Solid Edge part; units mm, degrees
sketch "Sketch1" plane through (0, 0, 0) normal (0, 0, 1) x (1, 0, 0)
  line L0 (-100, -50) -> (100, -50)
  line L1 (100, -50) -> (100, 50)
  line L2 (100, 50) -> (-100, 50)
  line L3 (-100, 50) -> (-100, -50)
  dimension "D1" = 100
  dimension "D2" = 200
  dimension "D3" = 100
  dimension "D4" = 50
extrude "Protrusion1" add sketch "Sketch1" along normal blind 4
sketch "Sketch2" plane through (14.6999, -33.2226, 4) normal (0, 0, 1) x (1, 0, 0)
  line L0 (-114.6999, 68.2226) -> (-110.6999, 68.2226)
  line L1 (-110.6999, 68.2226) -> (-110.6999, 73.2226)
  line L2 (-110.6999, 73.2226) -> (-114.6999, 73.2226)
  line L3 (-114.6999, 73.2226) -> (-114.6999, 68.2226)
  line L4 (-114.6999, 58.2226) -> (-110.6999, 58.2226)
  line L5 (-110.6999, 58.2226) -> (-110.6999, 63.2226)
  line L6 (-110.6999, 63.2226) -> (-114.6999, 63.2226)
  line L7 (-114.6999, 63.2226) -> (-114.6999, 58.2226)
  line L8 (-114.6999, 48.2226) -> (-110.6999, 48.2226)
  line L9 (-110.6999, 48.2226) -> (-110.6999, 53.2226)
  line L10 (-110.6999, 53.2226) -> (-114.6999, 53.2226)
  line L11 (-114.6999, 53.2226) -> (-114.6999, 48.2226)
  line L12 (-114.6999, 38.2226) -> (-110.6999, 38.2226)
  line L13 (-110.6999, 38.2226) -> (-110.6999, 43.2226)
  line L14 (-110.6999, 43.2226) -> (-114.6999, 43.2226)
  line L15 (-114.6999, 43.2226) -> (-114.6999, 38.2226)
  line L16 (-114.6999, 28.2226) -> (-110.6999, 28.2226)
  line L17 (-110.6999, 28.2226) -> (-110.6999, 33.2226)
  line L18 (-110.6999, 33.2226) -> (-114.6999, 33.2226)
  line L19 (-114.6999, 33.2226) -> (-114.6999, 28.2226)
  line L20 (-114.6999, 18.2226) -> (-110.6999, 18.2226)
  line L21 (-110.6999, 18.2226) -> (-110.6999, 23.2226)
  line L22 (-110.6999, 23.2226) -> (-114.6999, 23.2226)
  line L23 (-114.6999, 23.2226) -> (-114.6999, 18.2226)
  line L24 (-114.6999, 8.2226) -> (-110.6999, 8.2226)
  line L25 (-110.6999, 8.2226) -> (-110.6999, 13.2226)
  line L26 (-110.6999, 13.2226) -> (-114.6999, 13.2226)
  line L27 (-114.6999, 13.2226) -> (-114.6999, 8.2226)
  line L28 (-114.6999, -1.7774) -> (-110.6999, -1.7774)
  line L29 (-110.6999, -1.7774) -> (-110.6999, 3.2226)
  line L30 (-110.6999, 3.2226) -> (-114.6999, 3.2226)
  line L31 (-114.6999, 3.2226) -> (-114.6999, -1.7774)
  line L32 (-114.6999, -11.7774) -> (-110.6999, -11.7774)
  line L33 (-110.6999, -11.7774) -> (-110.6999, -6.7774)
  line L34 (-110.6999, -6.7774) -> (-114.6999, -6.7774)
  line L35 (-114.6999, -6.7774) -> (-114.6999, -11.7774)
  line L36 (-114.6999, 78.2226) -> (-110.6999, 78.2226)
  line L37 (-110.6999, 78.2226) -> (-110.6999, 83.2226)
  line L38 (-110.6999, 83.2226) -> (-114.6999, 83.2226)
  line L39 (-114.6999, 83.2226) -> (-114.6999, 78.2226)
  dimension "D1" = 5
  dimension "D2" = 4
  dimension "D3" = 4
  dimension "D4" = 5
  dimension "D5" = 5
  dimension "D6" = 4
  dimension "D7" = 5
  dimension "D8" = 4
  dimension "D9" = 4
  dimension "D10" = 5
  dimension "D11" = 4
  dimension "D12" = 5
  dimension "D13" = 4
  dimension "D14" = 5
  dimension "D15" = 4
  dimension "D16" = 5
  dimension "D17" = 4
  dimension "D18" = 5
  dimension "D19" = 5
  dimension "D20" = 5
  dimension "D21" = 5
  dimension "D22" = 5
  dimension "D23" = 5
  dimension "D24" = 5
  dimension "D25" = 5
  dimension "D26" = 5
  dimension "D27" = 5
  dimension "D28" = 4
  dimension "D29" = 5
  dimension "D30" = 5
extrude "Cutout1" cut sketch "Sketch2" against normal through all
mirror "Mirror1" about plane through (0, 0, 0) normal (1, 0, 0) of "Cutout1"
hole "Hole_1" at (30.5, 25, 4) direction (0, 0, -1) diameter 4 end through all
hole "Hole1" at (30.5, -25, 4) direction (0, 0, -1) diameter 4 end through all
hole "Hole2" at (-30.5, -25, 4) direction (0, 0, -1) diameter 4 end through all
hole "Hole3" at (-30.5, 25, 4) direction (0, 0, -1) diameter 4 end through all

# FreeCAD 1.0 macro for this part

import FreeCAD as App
import Part
import Sketcher

doc = App.newDocument("Part")
body = doc.addObject("PartDesign::Body", "Body")

# Sketch on XY plane
sketch1 = doc.addObject("Sketcher::SketchObject", "Sketch")
body.addObject(sketch1)
sketch1.AttachmentSupport = (doc.XY_Plane, [""])
sketch1.MapMode = "FlatFace"
sketch1.addGeometry([
    Part.LineSegment(App.Vector(-100, 50, 0), App.Vector(-100, -50, 0)),
    Part.LineSegment(App.Vector(-100, -50, 0), App.Vector(100, -50, 0)),
    Part.LineSegment(App.Vector(100, -50, 0), App.Vector(100, 50, 0)),
    Part.LineSegment(App.Vector(100, 50, 0), App.Vector(-100, 50, 0)),
], False)
sketch1.addConstraint([
    Sketcher.Constraint("Coincident", 0, 2, 1, 1),
    Sketcher.Constraint("Coincident", 1, 2, 2, 1),
    Sketcher.Constraint("Coincident", 2, 2, 3, 1),
    Sketcher.Constraint("Coincident", 3, 2, 0, 1),
    Sketcher.Constraint("Vertical", 0),
    Sketcher.Constraint("Horizontal", 1),
    Sketcher.Constraint("Vertical", 2),
    Sketcher.Constraint("Horizontal", 3),
    Sketcher.Constraint("Symmetric", 0, 2, 2, 2, -1, 1),
    Sketcher.Constraint("DistanceY", 0, 2, 0, 1, 100.0),
    Sketcher.Constraint("DistanceX", 0, 2, -1, 1, 100.0),
])
pad1 = doc.addObject("PartDesign::Pad", "Pad")
body.addObject(pad1)
pad1.Profile = sketch1
pad1.Length = 4

# Sketch on XY plane
sketch2 = doc.addObject("Sketcher::SketchObject", "Sketch001")
body.addObject(sketch2)
sketch2.AttachmentSupport = (doc.XY_Plane, [""])
sketch2.MapMode = "FlatFace"
sketch2.AttachmentOffset = App.Placement(App.Vector(0, 0, 4), App.Rotation())
sketch2.addGeometry([
    Part.LineSegment(App.Vector(-100, 40, 0), App.Vector(-100, 35, 0)),  # 0
    Part.LineSegment(App.Vector(-100, 35, 0), App.Vector(-96, 35, 0)),  # 1
    Part.LineSegment(App.Vector(-96, 35, 0), App.Vector(-96, 40, 0)),  # 2
    Part.LineSegment(App.Vector(-96, 40, 0), App.Vector(-100, 40, 0)),  # 3
    Part.LineSegment(App.Vector(-100, 30, 0), App.Vector(-100, 25, 0)),  # 4
    Part.LineSegment(App.Vector(-100, 25, 0), App.Vector(-96, 25, 0)),  # 5
    Part.LineSegment(App.Vector(-96, 25, 0), App.Vector(-96, 30, 0)),  # 6
    Part.LineSegment(App.Vector(-96, 30, 0), App.Vector(-100, 30, 0)),  # 7
    Part.LineSegment(App.Vector(-100, 20, 0), App.Vector(-100, 15, 0)),  # 8
    Part.LineSegment(App.Vector(-100, 15, 0), App.Vector(-96, 15, 0)),  # 9
    Part.LineSegment(App.Vector(-96, 15, 0), App.Vector(-96, 20, 0)),  # 10
    Part.LineSegment(App.Vector(-96, 20, 0), App.Vector(-100, 20, 0)),  # 11
    Part.LineSegment(App.Vector(-100, 10, 0), App.Vector(-100, 5, 0)),  # 12
    Part.LineSegment(App.Vector(-100, 5, 0), App.Vector(-96, 5, 0)),  # 13
    Part.LineSegment(App.Vector(-96, 5, 0), App.Vector(-96, 10, 0)),  # 14
    Part.LineSegment(App.Vector(-96, 10, 0), App.Vector(-100, 10, 0)),  # 15
    Part.LineSegment(App.Vector(-100, 0, 0), App.Vector(-100, -5, 0)),  # 16
    Part.LineSegment(App.Vector(-100, -5, 0), App.Vector(-96, -5, 0)),  # 17
    Part.LineSegment(App.Vector(-96, -5, 0), App.Vector(-96, 0, 0)),  # 18
    Part.LineSegment(App.Vector(-96, 0, 0), App.Vector(-100, 0, 0)),  # 19
    Part.LineSegment(App.Vector(-100, -10, 0), App.Vector(-100, -15, 0)),  # 20
    Part.LineSegment(App.Vector(-100, -15, 0), App.Vector(-96, -15, 0)),  # 21
    Part.LineSegment(App.Vector(-96, -15, 0), App.Vector(-96, -10, 0)),  # 22
    Part.LineSegment(App.Vector(-96, -10, 0), App.Vector(-100, -10, 0)),  # 23
    Part.LineSegment(App.Vector(-100, -20, 0), App.Vector(-100, -25, 0)),  # 24
    Part.LineSegment(App.Vector(-100, -25, 0), App.Vector(-96, -25, 0)),  # 25
    Part.LineSegment(App.Vector(-96, -25, 0), App.Vector(-96, -20, 0)),  # 26
    Part.LineSegment(App.Vector(-96, -20, 0), App.Vector(-100, -20, 0)),  # 27
    Part.LineSegment(App.Vector(-100, -30, 0), App.Vector(-100, -35, 0)),  # 28
    Part.LineSegment(App.Vector(-100, -35, 0), App.Vector(-96, -35, 0)),  # 29
    Part.LineSegment(App.Vector(-96, -35, 0), App.Vector(-96, -30, 0)),  # 30
    Part.LineSegment(App.Vector(-96, -30, 0), App.Vector(-100, -30, 0)),  # 31
    Part.LineSegment(App.Vector(-100, -40, 0), App.Vector(-100, -45, 0)),  # 32
    Part.LineSegment(App.Vector(-100, -45, 0), App.Vector(-96, -45, 0)),  # 33
    Part.LineSegment(App.Vector(-96, -45, 0), App.Vector(-96, -40, 0)),  # 34
    Part.LineSegment(App.Vector(-96, -40, 0), App.Vector(-100, -40, 0)),  # 35
    Part.LineSegment(App.Vector(-100, 50, 0), App.Vector(-100, 45, 0)),  # 36
    Part.LineSegment(App.Vector(-100, 45, 0), App.Vector(-96, 45, 0)),  # 37
    Part.LineSegment(App.Vector(-96, 45, 0), App.Vector(-96, 50, 0)),  # 38
    Part.LineSegment(App.Vector(-96, 50, 0), App.Vector(-100, 50, 0)),  # 39
], False)
sketch2.addConstraint([
    Sketcher.Constraint("Coincident", 0, 2, 1, 1),
    Sketcher.Constraint("Coincident", 1, 2, 2, 1),
    Sketcher.Constraint("Coincident", 2, 2, 3, 1),
    Sketcher.Constraint("Coincident", 3, 2, 0, 1),
    Sketcher.Constraint("Coincident", 4, 2, 5, 1),
    Sketcher.Constraint("Coincident", 5, 2, 6, 1),
    Sketcher.Constraint("Coincident", 6, 2, 7, 1),
    Sketcher.Constraint("Coincident", 7, 2, 4, 1),
    Sketcher.Constraint("Coincident", 8, 2, 9, 1),
    Sketcher.Constraint("Coincident", 9, 2, 10, 1),
    Sketcher.Constraint("Coincident", 10, 2, 11, 1),
    Sketcher.Constraint("Coincident", 11, 2, 8, 1),
    Sketcher.Constraint("Coincident", 12, 2, 13, 1),
    Sketcher.Constraint("Coincident", 13, 2, 14, 1),
    Sketcher.Constraint("Coincident", 14, 2, 15, 1),
    Sketcher.Constraint("Coincident", 15, 2, 12, 1),
    Sketcher.Constraint("Coincident", 16, 2, 17, 1),
    Sketcher.Constraint("Coincident", 17, 2, 18, 1),
    Sketcher.Constraint("Coincident", 18, 2, 19, 1),
    Sketcher.Constraint("Coincident", 19, 2, 16, 1),
    Sketcher.Constraint("Coincident", 20, 2, 21, 1),
    Sketcher.Constraint("Coincident", 21, 2, 22, 1),
    Sketcher.Constraint("Coincident", 22, 2, 23, 1),
    Sketcher.Constraint("Coincident", 23, 2, 20, 1),
    Sketcher.Constraint("Coincident", 24, 2, 25, 1),
    Sketcher.Constraint("Coincident", 25, 2, 26, 1),
    Sketcher.Constraint("Coincident", 26, 2, 27, 1),
    Sketcher.Constraint("Coincident", 27, 2, 24, 1),
    Sketcher.Constraint("Coincident", 28, 2, 29, 1),
    Sketcher.Constraint("Coincident", 29, 2, 30, 1),
    Sketcher.Constraint("Coincident", 30, 2, 31, 1),
    Sketcher.Constraint("Coincident", 31, 2, 28, 1),
    Sketcher.Constraint("Coincident", 32, 2, 33, 1),
    Sketcher.Constraint("Coincident", 33, 2, 34, 1),
    Sketcher.Constraint("Coincident", 34, 2, 35, 1),
    Sketcher.Constraint("Coincident", 35, 2, 32, 1),
    Sketcher.Constraint("Coincident", 36, 2, 37, 1),
    Sketcher.Constraint("Coincident", 37, 2, 38, 1),
    Sketcher.Constraint("Coincident", 38, 2, 39, 1),
    Sketcher.Constraint("Coincident", 39, 2, 36, 1),
    Sketcher.Constraint("Vertical", 0),
    Sketcher.Constraint("Horizontal", 1),
    Sketcher.Constraint("Vertical", 2),
    Sketcher.Constraint("Horizontal", 3),
    Sketcher.Constraint("Vertical", 4),
    Sketcher.Constraint("Horizontal", 5),
    Sketcher.Constraint("Vertical", 6),
    Sketcher.Constraint("Horizontal", 7),
    Sketcher.Constraint("Vertical", 8),
    Sketcher.Constraint("Horizontal", 9),
    Sketcher.Constraint("Vertical", 10),
    Sketcher.Constraint("Horizontal", 11),
    Sketcher.Constraint("Vertical", 12),
    Sketcher.Constraint("Horizontal", 13),
    Sketcher.Constraint("Vertical", 14),
    Sketcher.Constraint("Horizontal", 15),
    Sketcher.Constraint("Vertical", 16),
    Sketcher.Constraint("Horizontal", 17),
    Sketcher.Constraint("Vertical", 18),
    Sketcher.Constraint("Horizontal", 19),
    Sketcher.Constraint("Vertical", 20),
    Sketcher.Constraint("Horizontal", 21),
    Sketcher.Constraint("Vertical", 22),
    Sketcher.Constraint("Horizontal", 23),
    Sketcher.Constraint("Vertical", 24),
    Sketcher.Constraint("Horizontal", 25),
    Sketcher.Constraint("Vertical", 26),
    Sketcher.Constraint("Horizontal", 27),
    Sketcher.Constraint("Vertical", 28),
    Sketcher.Constraint("Horizontal", 29),
    Sketcher.Constraint("Vertical", 30),
    Sketcher.Constraint("Horizontal", 31),
    Sketcher.Constraint("Vertical", 32),
    Sketcher.Constraint("Horizontal", 33),
    Sketcher.Constraint("Vertical", 34),
    Sketcher.Constraint("Horizontal", 35),
    Sketcher.Constraint("Vertical", 36),
    Sketcher.Constraint("Horizontal", 37),
    Sketcher.Constraint("Vertical", 38),
    Sketcher.Constraint("Horizontal", 39),
    Sketcher.Constraint("Symmetric", 12, 2, 16, 2, -1),
    Sketcher.Constraint("Symmetric", 8, 2, 20, 2, -1),
    Sketcher.Constraint("Symmetric", 14, 2, 22, 2, -1),
    Sketcher.Constraint("Symmetric", 4, 2, 24, 2, -1),
    Sketcher.Constraint("Symmetric", 10, 2, 26, 2, -1),
    Sketcher.Constraint("Symmetric", 0, 2, 28, 2, -1),
    Sketcher.Constraint("Symmetric", 6, 2, 30, 2, -1),
    Sketcher.Constraint("Symmetric", 2, 2, 34, 2, -1),
    Sketcher.Constraint("Symmetric", 32, 2, 36, 2, -1),
    Sketcher.Constraint("PointOnObject", 18, 2, -1),
    Sketcher.Constraint("Vertical", 3, 2, 4, 2),
    Sketcher.Constraint("Vertical", 2, 2, 5, 2),
    Sketcher.Constraint("Vertical", 7, 2, 8, 2),
    Sketcher.Constraint("Vertical", 6, 2, 9, 2),
    Sketcher.Constraint("Vertical", 11, 2, 12, 2),
    Sketcher.Constraint("Vertical", 10, 2, 13, 2),
    Sketcher.Constraint("Vertical", 14, 2, 17, 2),
    Sketcher.Constraint("Vertical", 31, 2, 32, 2),
    Sketcher.Constraint("Vertical", 34, 2, 37, 2),
    Sketcher.Constraint("Equal", 2, 4),
    Sketcher.Constraint("Equal", 6, 8),
    Sketcher.Constraint("Equal", 10, 12),
    Sketcher.Constraint("Equal", 14, 16),
    Sketcher.Constraint("Equal", 18, 20),
    Sketcher.Constraint("Equal", 22, 24),
    Sketcher.Constraint("Equal", 26, 28),
    Sketcher.Constraint("Equal", 30, 32),
    Sketcher.Constraint("Equal", 34, 36),
    Sketcher.Constraint("DistanceX", 1, 1, 1, 2, 4.0),
    Sketcher.Constraint("DistanceY", 0, 2, 0, 1, 5.0),
    Sketcher.Constraint("DistanceX", 0, 2, -1, 1, 100.0),
])
pocket1 = doc.addObject("PartDesign::Pocket", "Pocket")
body.addObject(pocket1)
pocket1.Profile = sketch2
pocket1.Type = "ThroughAll"
doc.recompute()

mirrored = doc.addObject("PartDesign::Mirrored", "Mirrored")
body.addObject(mirrored)
mirrored.Originals = [pocket1]
mirrored.MirrorPlane = (doc.YZ_Plane, [""])
body.Tip = mirrored

# Sketch on XY plane
sketch3 = doc.addObject("Sketcher::SketchObject", "Sketch002")
body.addObject(sketch3)
sketch3.AttachmentSupport = (doc.XY_Plane, [""])
sketch3.MapMode = "FlatFace"
sketch3.AttachmentOffset = App.Placement(App.Vector(0, 0, 4), App.Rotation())
sketch3.addGeometry(Part.Circle(App.Vector(30.5, 25, 0), App.Vector(0, 0, 1), 2), False)
sketch3.addConstraint([
    Sketcher.Constraint("Diameter", 0, 4.0),
    Sketcher.Constraint("DistanceY", -1, 1, 0, 3, 25.0),
    Sketcher.Constraint("DistanceX", -1, 1, 0, 3, 30.5),
])
doc.recompute()
hole = doc.addObject("PartDesign::Hole", "Hole")
body.addObject(hole)
hole.Profile = sketch3
hole.ThreadType = "None"
hole.Diameter = 4
hole.DepthType = "ThroughAll"

# Sketch on XY plane
sketch4 = doc.addObject("Sketcher::SketchObject", "Sketch003")
body.addObject(sketch4)
sketch4.AttachmentSupport = (doc.XY_Plane, [""])
sketch4.MapMode = "FlatFace"
sketch4.AttachmentOffset = App.Placement(App.Vector(0, 0, 4), App.Rotation())
sketch4.addGeometry(Part.Circle(App.Vector(30.5, -25, 0), App.Vector(0, 0, 1), 2), False)
sketch4.addConstraint([
    Sketcher.Constraint("Diameter", 0, 4.0),
    Sketcher.Constraint("DistanceY", 0, 3, -1, 1, 25.0),
    Sketcher.Constraint("DistanceX", -1, 1, 0, 3, 30.5),
])
doc.recompute()
hole2 = doc.addObject("PartDesign::Hole", "Hole001")
body.addObject(hole2)
hole2.Profile = sketch4
hole2.ThreadType = "None"
hole2.Diameter = 4
hole2.DepthType = "ThroughAll"

# Sketch on XY plane
sketch5 = doc.addObject("Sketcher::SketchObject", "Sketch004")
body.addObject(sketch5)
sketch5.AttachmentSupport = (doc.XY_Plane, [""])
sketch5.MapMode = "FlatFace"
sketch5.AttachmentOffset = App.Placement(App.Vector(0, 0, 4), App.Rotation())
sketch5.addGeometry(Part.Circle(App.Vector(-30.5, -25, 0), App.Vector(0, 0, 1), 2), False)
sketch5.addConstraint([
    Sketcher.Constraint("Diameter", 0, 4.0),
    Sketcher.Constraint("DistanceY", 0, 3, -1, 1, 25.0),
    Sketcher.Constraint("DistanceX", 0, 3, -1, 1, 30.5),
])
doc.recompute()
hole3 = doc.addObject("PartDesign::Hole", "Hole002")
body.addObject(hole3)
hole3.Profile = sketch5
hole3.ThreadType = "None"
hole3.Diameter = 4
hole3.DepthType = "ThroughAll"

# Sketch on XY plane
sketch6 = doc.addObject("Sketcher::SketchObject", "Sketch005")
body.addObject(sketch6)
sketch6.AttachmentSupport = (doc.XY_Plane, [""])
sketch6.MapMode = "FlatFace"
sketch6.AttachmentOffset = App.Placement(App.Vector(0, 0, 4), App.Rotation())
sketch6.addGeometry(Part.Circle(App.Vector(-30.5, 25, 0), App.Vector(0, 0, 1), 2), False)
sketch6.addConstraint([
    Sketcher.Constraint("Diameter", 0, 4.0),
    Sketcher.Constraint("DistanceY", -1, 1, 0, 3, 25.0),
    Sketcher.Constraint("DistanceX", 0, 3, -1, 1, 30.5),
])
doc.recompute()
hole4 = doc.addObject("PartDesign::Hole", "Hole003")
body.addObject(hole4)
hole4.Profile = sketch6
hole4.ThreadType = "None"
hole4.Diameter = 4
hole4.DepthType = "ThroughAll"

doc.recompute()
